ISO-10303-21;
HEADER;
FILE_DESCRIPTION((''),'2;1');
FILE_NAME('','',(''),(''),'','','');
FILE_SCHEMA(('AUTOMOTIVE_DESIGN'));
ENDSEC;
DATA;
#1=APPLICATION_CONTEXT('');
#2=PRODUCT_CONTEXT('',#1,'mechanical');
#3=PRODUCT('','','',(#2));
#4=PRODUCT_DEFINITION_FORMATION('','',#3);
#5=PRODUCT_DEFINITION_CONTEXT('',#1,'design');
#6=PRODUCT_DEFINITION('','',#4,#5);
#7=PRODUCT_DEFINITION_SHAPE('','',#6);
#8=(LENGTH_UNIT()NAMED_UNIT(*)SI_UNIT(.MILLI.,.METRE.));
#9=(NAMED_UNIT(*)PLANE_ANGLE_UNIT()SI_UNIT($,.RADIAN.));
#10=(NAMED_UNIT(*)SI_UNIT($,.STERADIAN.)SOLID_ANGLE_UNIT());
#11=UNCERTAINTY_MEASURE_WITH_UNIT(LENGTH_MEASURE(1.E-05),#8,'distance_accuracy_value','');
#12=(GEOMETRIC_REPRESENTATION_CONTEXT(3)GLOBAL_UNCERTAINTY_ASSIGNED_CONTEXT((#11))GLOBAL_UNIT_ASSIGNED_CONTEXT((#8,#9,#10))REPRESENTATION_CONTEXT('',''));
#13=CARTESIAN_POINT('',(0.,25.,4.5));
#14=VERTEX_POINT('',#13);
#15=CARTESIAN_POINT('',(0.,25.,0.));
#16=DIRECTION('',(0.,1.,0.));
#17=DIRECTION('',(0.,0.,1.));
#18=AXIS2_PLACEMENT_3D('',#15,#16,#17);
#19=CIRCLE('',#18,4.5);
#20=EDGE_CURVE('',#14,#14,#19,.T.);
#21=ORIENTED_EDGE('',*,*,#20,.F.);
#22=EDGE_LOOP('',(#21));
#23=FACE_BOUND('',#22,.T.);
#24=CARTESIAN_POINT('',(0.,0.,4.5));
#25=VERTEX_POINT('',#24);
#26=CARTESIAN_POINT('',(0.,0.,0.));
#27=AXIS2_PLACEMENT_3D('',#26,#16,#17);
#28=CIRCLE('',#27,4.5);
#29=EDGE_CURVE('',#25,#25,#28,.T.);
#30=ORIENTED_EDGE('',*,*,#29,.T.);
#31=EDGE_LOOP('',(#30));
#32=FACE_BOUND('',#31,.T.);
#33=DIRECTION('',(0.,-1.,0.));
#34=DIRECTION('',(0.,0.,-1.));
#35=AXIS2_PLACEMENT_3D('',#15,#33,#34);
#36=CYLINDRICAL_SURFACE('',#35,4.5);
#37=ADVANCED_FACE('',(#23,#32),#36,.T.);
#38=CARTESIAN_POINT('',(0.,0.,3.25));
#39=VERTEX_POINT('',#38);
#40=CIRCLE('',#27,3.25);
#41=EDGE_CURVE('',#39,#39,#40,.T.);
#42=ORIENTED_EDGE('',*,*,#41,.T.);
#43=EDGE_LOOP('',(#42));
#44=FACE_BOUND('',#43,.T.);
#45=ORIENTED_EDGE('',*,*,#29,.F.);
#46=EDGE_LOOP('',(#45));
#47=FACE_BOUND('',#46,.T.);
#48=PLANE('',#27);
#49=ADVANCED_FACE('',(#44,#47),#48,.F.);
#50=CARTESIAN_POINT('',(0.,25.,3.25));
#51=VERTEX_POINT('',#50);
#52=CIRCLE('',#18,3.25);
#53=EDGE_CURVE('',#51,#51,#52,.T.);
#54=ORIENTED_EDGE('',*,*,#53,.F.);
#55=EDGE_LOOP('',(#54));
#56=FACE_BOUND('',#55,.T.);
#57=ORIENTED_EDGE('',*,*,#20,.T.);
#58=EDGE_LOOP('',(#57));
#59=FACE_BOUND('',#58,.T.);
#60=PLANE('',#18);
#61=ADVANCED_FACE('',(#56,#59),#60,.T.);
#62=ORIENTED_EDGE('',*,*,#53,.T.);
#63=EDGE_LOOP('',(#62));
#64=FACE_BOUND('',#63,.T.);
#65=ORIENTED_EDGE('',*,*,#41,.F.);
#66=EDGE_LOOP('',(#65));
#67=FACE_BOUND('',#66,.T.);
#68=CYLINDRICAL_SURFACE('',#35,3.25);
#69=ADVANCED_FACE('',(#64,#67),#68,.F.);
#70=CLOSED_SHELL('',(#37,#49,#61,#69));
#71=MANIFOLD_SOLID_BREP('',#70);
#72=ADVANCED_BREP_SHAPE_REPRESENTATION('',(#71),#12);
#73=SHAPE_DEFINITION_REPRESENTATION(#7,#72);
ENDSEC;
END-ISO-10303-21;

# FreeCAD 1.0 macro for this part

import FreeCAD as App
import Part
import Sketcher

doc = App.newDocument("Part")
body = doc.addObject("PartDesign::Body", "Body")

sketch1 = body.newObject("Sketcher::SketchObject", "Sketch")
sketch1.AttachmentSupport = (doc.getObject("XZ_Plane"), [""])
sketch1.MapMode = "FlatFace"
sketch1.addGeometry([
    Part.Circle(App.Vector(0, 0, 0), App.Vector(0, 0, 1), 4.5),
    Part.Circle(App.Vector(0, 0, 0), App.Vector(0, 0, 1), 3.2),
], False)
sketch1.addConstraint([
    Sketcher.Constraint("Coincident", 0, 3, -1, 1),
    Sketcher.Constraint("Coincident", 1, 3, -1, 1),
    Sketcher.Constraint("Diameter", 0, 9.0),
    Sketcher.Constraint("Diameter", 1, 6.5),
])
pad1 = body.newObject("PartDesign::Pad", "Pad")
pad1.Profile = sketch1
pad1.Length = 25
pad1.Reversed = True

doc.recompute()
